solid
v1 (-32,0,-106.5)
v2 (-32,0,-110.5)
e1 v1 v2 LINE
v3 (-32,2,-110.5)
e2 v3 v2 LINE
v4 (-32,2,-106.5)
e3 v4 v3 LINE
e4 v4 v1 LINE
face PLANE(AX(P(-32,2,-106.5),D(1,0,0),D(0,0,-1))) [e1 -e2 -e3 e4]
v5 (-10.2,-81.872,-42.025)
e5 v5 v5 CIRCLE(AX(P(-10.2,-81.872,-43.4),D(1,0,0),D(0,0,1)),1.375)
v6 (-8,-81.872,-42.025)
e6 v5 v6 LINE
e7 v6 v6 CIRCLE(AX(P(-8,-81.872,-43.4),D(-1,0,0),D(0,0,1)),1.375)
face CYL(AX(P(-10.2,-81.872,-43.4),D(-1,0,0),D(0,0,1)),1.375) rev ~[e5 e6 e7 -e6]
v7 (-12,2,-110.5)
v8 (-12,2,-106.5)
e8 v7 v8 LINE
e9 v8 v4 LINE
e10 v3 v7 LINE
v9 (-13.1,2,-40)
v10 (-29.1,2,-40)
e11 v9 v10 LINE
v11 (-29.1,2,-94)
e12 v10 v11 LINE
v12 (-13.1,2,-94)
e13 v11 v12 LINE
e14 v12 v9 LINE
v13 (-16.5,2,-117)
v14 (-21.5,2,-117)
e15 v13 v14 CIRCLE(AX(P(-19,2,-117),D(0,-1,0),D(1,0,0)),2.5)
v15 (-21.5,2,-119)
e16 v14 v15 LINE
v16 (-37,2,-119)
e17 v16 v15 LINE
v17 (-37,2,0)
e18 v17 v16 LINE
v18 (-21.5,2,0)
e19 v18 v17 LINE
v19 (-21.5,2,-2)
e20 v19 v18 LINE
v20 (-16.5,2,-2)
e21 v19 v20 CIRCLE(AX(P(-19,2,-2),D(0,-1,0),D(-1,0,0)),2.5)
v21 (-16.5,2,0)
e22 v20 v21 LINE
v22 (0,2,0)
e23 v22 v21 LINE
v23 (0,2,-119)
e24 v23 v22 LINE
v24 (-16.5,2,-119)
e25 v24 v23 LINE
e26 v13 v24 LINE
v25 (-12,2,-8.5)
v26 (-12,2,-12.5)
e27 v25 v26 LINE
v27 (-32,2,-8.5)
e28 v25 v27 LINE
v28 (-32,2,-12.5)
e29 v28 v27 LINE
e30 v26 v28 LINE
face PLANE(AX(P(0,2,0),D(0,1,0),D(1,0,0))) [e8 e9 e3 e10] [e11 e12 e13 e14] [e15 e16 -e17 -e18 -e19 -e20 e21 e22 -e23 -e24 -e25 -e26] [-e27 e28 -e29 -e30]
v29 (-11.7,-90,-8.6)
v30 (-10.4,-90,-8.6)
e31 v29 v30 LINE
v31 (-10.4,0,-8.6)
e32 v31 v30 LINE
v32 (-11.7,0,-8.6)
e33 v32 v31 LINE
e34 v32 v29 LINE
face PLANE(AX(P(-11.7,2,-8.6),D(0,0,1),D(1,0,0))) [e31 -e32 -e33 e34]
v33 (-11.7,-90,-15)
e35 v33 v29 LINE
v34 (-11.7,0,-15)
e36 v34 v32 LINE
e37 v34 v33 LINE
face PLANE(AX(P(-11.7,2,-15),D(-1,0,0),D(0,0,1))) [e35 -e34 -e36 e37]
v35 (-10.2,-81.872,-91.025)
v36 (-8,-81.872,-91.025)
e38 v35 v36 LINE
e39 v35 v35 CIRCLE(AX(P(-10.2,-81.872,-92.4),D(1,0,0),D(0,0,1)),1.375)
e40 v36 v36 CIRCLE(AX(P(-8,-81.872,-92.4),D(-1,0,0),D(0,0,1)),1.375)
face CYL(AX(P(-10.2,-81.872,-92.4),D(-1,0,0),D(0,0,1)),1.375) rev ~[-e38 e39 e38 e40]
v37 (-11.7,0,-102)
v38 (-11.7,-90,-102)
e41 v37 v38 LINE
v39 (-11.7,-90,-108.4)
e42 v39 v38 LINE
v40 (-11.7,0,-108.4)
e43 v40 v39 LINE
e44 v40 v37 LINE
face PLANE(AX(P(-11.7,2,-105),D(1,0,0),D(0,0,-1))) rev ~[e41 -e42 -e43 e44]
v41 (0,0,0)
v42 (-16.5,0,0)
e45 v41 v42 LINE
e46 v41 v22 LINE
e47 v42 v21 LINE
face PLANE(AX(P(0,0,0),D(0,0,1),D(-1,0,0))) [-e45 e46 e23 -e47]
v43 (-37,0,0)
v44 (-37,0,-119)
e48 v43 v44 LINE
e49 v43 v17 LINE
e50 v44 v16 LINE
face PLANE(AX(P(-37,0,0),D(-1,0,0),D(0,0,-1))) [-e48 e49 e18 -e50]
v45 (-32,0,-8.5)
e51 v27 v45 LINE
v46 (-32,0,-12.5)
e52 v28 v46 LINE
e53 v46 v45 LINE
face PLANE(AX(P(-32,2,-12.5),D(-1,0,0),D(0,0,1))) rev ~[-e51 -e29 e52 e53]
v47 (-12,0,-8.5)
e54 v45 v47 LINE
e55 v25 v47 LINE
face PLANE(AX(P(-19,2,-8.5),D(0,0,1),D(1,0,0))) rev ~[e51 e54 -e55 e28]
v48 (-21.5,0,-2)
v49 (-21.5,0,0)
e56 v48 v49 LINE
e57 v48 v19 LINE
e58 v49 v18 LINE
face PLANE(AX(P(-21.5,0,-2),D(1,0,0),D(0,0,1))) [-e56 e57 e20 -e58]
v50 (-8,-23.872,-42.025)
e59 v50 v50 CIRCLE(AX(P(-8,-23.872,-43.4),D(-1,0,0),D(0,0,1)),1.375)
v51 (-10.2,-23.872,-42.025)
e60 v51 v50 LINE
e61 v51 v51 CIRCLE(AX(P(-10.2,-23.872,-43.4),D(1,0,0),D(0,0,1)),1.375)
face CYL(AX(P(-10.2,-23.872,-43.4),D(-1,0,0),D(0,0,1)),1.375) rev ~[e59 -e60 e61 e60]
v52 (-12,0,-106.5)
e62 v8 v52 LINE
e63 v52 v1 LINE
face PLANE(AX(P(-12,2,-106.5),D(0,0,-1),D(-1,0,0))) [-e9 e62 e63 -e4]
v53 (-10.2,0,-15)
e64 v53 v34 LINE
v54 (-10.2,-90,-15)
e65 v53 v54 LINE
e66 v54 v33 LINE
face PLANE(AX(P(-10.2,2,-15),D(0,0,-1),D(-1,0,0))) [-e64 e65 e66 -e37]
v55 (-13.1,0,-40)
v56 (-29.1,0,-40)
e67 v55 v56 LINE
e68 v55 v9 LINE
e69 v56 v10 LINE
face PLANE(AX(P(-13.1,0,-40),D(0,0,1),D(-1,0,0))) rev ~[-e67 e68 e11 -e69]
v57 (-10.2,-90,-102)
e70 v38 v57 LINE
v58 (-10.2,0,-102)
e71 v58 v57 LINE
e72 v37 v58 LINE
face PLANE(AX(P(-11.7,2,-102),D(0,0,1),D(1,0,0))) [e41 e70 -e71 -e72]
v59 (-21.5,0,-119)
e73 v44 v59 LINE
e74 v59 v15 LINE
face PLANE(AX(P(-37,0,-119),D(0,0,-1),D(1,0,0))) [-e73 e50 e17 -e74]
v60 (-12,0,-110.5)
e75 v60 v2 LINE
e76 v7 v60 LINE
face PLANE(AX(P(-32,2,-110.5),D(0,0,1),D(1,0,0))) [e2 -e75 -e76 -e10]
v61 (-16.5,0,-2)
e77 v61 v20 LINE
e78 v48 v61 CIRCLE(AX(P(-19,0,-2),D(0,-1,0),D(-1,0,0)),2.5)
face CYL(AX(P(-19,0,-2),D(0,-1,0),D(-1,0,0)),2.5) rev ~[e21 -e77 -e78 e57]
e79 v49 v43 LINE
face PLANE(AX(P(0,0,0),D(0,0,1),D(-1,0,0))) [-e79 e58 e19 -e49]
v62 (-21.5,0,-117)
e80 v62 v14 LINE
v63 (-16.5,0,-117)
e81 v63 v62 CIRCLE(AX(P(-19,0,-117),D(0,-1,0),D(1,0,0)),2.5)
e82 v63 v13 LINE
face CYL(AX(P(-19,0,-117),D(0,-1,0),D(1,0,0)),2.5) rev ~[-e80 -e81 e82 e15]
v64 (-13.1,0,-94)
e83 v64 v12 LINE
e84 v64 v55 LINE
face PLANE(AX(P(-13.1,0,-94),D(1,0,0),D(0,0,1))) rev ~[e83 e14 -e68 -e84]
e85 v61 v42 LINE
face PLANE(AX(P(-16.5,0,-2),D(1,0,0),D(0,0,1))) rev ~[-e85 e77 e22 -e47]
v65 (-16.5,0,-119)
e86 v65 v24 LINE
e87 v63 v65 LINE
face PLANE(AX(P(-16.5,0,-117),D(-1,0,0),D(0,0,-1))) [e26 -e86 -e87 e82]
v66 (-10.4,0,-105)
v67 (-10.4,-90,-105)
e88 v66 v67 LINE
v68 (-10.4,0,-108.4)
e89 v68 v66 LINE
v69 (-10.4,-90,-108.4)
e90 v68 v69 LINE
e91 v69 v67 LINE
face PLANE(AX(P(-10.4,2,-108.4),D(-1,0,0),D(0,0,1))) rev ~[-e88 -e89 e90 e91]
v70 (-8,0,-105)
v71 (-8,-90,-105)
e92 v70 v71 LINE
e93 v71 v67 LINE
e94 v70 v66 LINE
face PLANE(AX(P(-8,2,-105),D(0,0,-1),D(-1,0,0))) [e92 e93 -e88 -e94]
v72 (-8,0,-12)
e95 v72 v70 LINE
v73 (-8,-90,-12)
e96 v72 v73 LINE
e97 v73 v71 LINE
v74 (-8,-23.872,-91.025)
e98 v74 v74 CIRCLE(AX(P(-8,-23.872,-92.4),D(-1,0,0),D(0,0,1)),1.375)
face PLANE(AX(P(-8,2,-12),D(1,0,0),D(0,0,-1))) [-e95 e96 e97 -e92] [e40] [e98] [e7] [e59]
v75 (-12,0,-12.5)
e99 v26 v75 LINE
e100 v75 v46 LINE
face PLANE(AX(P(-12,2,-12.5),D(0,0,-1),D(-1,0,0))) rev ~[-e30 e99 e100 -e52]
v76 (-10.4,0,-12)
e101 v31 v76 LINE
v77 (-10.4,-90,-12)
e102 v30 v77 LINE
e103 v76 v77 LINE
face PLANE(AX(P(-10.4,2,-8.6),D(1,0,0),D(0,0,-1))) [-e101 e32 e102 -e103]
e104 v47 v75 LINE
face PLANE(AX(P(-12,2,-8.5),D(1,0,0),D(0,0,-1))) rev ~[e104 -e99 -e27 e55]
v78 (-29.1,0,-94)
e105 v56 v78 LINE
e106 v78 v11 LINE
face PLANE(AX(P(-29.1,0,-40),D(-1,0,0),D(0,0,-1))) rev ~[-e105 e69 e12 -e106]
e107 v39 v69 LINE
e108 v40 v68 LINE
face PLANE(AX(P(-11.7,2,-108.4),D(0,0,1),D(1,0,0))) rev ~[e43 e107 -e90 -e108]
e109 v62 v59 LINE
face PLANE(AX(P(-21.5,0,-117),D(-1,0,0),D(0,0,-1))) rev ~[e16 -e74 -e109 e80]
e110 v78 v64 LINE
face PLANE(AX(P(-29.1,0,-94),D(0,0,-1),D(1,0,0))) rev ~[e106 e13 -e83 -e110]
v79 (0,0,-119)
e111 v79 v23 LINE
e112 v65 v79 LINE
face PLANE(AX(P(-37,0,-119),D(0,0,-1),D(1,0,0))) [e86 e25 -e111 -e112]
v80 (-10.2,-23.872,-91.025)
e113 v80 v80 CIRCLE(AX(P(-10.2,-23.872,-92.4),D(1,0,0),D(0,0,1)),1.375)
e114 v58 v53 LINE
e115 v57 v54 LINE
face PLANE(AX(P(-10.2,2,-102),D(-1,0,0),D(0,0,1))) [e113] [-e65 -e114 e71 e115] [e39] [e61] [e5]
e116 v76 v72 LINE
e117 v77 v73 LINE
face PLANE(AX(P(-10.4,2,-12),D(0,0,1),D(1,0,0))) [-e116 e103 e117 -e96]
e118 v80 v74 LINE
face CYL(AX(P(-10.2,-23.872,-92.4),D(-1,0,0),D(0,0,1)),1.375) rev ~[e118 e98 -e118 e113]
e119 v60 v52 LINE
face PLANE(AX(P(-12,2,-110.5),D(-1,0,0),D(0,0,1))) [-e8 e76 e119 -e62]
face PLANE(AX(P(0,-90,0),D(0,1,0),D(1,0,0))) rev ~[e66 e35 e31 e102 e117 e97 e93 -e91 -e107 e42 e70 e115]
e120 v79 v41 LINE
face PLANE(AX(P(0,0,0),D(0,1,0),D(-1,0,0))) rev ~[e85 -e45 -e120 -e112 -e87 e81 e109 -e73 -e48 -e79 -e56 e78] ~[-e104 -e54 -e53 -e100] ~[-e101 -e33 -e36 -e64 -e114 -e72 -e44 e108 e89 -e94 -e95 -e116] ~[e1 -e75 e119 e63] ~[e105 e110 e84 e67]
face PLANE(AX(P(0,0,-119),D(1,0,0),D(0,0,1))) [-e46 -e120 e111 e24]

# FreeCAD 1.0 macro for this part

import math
import FreeCAD as App
import Part
import Sketcher
from FreeCAD import Vector

doc = App.newDocument("Part")
body = doc.addObject("PartDesign::Body", "Body")

sketch1 = body.newObject("Sketcher::SketchObject", "Sketch")
sketch1.AttachmentSupport = (doc.getObject("XZ_Plane"), [""])
sketch1.MapMode = "FlatFace"
sketch1.addGeometry([
    Part.LineSegment(Vector(-37, 0, 0), Vector(0, 0, 0)),
    Part.LineSegment(Vector(0, 0, 0), Vector(0, -119, 0)),
    Part.LineSegment(Vector(0, -119, 0), Vector(-37, -119, 0)),
    Part.LineSegment(Vector(-37, -119, 0), Vector(-37, 0, 0)),
], False)
sketch1.addConstraint([
    Sketcher.Constraint("Coincident", 0, 2, 1, 1),
    Sketcher.Constraint("Coincident", 1, 2, 2, 1),
    Sketcher.Constraint("Coincident", 2, 2, 3, 1),
    Sketcher.Constraint("Coincident", 3, 2, 0, 1),
    Sketcher.Constraint("Horizontal", 0),
    Sketcher.Constraint("Vertical", 1),
    Sketcher.Constraint("Horizontal", 2),
    Sketcher.Constraint("Vertical", 3),
    Sketcher.Constraint("Coincident", 0, 2, -1, 1),
    Sketcher.Constraint("DistanceX", 0, 1, 0, 2, 37.0),
    Sketcher.Constraint("DistanceY", 1, 2, 1, 1, 119.0),
])
pad1 = body.newObject("PartDesign::Pad", "Pad")
pad1.Profile = sketch1
pad1.Length = 2
pad1.Reversed = True

sketch2 = body.newObject("Sketcher::SketchObject", "Sketch001")
sketch2.AttachmentSupport = (doc.getObject("XZ_Plane"), [""])
sketch2.MapMode = "FlatFace"
sketch2.addGeometry([
    Part.LineSegment(Vector(-16.5, -2, 0), Vector(-16.5, 0, 0)),
    Part.LineSegment(Vector(-16.5, 0, 0), Vector(-21.5, 0, 0)),
    Part.LineSegment(Vector(-21.5, 0, 0), Vector(-21.5, -2, 0)),
    Part.ArcOfCircle(Part.Circle(Vector(-19, -2, 0), Vector(0, 0, 1), 2.5), math.radians(180), math.radians(360)),
    Part.LineSegment(Vector(-21.5, -119, 0), Vector(-16.5, -119, 0)),
    Part.LineSegment(Vector(-16.5, -119, 0), Vector(-16.5, -117, 0)),
    Part.ArcOfCircle(Part.Circle(Vector(-19, -117, 0), Vector(0, 0, 1), 2.5), math.radians(0), math.radians(180)),
    Part.LineSegment(Vector(-21.5, -117, 0), Vector(-21.5, -119, 0)),
], False)
sketch2.addConstraint([
    Sketcher.Constraint("Coincident", 0, 2, 1, 1),
    Sketcher.Constraint("Coincident", 1, 2, 2, 1),
    Sketcher.Constraint("Tangent", 2, 2, 3, 1),
    Sketcher.Constraint("Tangent", 3, 2, 0, 1),
    Sketcher.Constraint("Coincident", 4, 2, 5, 1),
    Sketcher.Constraint("Tangent", 5, 2, 6, 1),
    Sketcher.Constraint("Tangent", 6, 2, 7, 1),
    Sketcher.Constraint("Coincident", 7, 2, 4, 1),
    Sketcher.Constraint("Vertical", 0),
    Sketcher.Constraint("Horizontal", 1),
    Sketcher.Constraint("Vertical", 2),
    Sketcher.Constraint("Horizontal", 4),
    Sketcher.Constraint("Vertical", 5),
    Sketcher.Constraint("Vertical", 7),
    Sketcher.Constraint("Equal", 3, 6),
    Sketcher.Constraint("PointOnObject", 0, 2, -1),
    Sketcher.Constraint("Vertical", 3, 3, 6, 3),
    Sketcher.Constraint("Equal", 2, 5),
    Sketcher.Constraint("Radius", 3, 2.5),
    Sketcher.Constraint("DistanceY", 0, 1, 0, 2, 2.0),
    Sketcher.Constraint("DistanceX", 3, 3, -1, 1, 19.0),
    Sketcher.Constraint("DistanceY", 6, 3, -1, 1, 117.0),
])
pocket1 = body.newObject("PartDesign::Pocket", "Pocket")
pocket1.Profile = sketch2
pocket1.Length = 2

sketch3 = body.newObject("Sketcher::SketchObject", "Sketch002")
sketch3.AttachmentSupport = (doc.getObject("XZ_Plane"), [""])
sketch3.MapMode = "FlatFace"
sketch3.AttachmentOffset = App.Placement(Vector(0, 0, -2), App.Rotation())
sketch3.addGeometry([
    Part.LineSegment(Vector(-11.7, -15, 0), Vector(-11.7, -8.6, 0)),
    Part.LineSegment(Vector(-11.7, -8.6, 0), Vector(-10.4, -8.6, 0)),
    Part.LineSegment(Vector(-10.4, -8.6, 0), Vector(-10.4, -12, 0)),
    Part.LineSegment(Vector(-10.4, -12, 0), Vector(-8, -12, 0)),
    Part.LineSegment(Vector(-8, -12, 0), Vector(-8, -105, 0)),
    Part.LineSegment(Vector(-8, -105, 0), Vector(-10.4, -105, 0)),
    Part.LineSegment(Vector(-10.4, -105, 0), Vector(-10.4, -108.4, 0)),
    Part.LineSegment(Vector(-10.4, -108.4, 0), Vector(-11.7, -108.4, 0)),
    Part.LineSegment(Vector(-11.7, -108.4, 0), Vector(-11.7, -102, 0)),
    Part.LineSegment(Vector(-11.7, -102, 0), Vector(-10.2, -102, 0)),
    Part.LineSegment(Vector(-10.2, -102, 0), Vector(-10.2, -15, 0)),
    Part.LineSegment(Vector(-10.2, -15, 0), Vector(-11.7, -15, 0)),
], False)
sketch3.addConstraint([
    Sketcher.Constraint("Coincident", 0, 2, 1, 1),
    Sketcher.Constraint("Coincident", 1, 2, 2, 1),
    Sketcher.Constraint("Coincident", 2, 2, 3, 1),
    Sketcher.Constraint("Coincident", 3, 2, 4, 1),
    Sketcher.Constraint("Coincident", 4, 2, 5, 1),
    Sketcher.Constraint("Coincident", 5, 2, 6, 1),
    Sketcher.Constraint("Coincident", 6, 2, 7, 1),
    Sketcher.Constraint("Coincident", 7, 2, 8, 1),
    Sketcher.Constraint("Coincident", 8, 2, 9, 1),
    Sketcher.Constraint("Coincident", 9, 2, 10, 1),
    Sketcher.Constraint("Coincident", 10, 2, 11, 1),
    Sketcher.Constraint("Coincident", 11, 2, 0, 1),
    Sketcher.Constraint("Vertical", 0),
    Sketcher.Constraint("Horizontal", 1),
    Sketcher.Constraint("Vertical", 2),
    Sketcher.Constraint("Horizontal", 3),
    Sketcher.Constraint("Vertical", 4),
    Sketcher.Constraint("Horizontal", 5),
    Sketcher.Constraint("Vertical", 6),
    Sketcher.Constraint("Horizontal", 7),
    Sketcher.Constraint("Vertical", 8),
    Sketcher.Constraint("Horizontal", 9),
    Sketcher.Constraint("Vertical", 10),
    Sketcher.Constraint("Horizontal", 11),
    Sketcher.Constraint("Vertical", 2, 2, 5, 2),
    Sketcher.Constraint("Vertical", 0, 2, 7, 2),
    Sketcher.Constraint("Equal", 2, 6),
    Sketcher.Constraint("Equal", 0, 8),
    Sketcher.Constraint("DistanceY", 4, 2, 4, 1, 93.0),
    Sketcher.Constraint("DistanceY", 10, 1, 10, 2, 87.0),
    Sketcher.Constraint("DistanceX", 1, 1, 1, 2, 1.3),
    Sketcher.Constraint("DistanceX", 9, 1, 9, 2, 1.5),
    Sketcher.Constraint("DistanceY", 2, 2, 2, 1, 3.4),
    Sketcher.Constraint("DistanceY", 2, 2, -1, 1, 12.0),
    Sketcher.Constraint("DistanceX", 9, 2, 4, 2, 2.2),
    Sketcher.Constraint("DistanceX", 3, 2, -1, 1, 8.0),
])
pad2 = body.newObject("PartDesign::Pad", "Pad001")
pad2.Profile = sketch3
pad2.Length = 92

sketch4 = body.newObject("Sketcher::SketchObject", "Sketch003")
sketch4.AttachmentSupport = (doc.getObject("YZ_Plane"), [""])
sketch4.MapMode = "FlatFace"
sketch4.AttachmentOffset = App.Placement(Vector(0, 0, -10.2), App.Rotation())
sketch4.addGeometry([
    Part.Circle(Vector(-23.872, -43.4, 0), Vector(0, 0, 1), 1.375),
    Part.Circle(Vector(-23.872, -92.4, 0), Vector(0, 0, 1), 1.375),
    Part.Circle(Vector(-81.872, -92.4, 0), Vector(0, 0, 1), 1.375),
    Part.Circle(Vector(-81.872, -43.4, 0), Vector(0, 0, 1), 1.375),
], False)
sketch4.addConstraint([
    Sketcher.Constraint("Equal", 0, 1),
    Sketcher.Constraint("Equal", 1, 2),
    Sketcher.Constraint("Equal", 2, 3),
    Sketcher.Constraint("Horizontal", 1, 3, 2, 3),
    Sketcher.Constraint("Horizontal", 0, 3, 3, 3),
    Sketcher.Constraint("Vertical", 0, 3, 1, 3),
    Sketcher.Constraint("Vertical", 2, 3, 3, 3),
    Sketcher.Constraint("Diameter", 0, 2.75),
    Sketcher.Constraint("DistanceY", 1, 3, 0, 3, 49.0),
    Sketcher.Constraint("DistanceX", 2, 3, 1, 3, 58.0),
    Sketcher.Constraint("DistanceY", 0, 3, -1, 1, 43.4),
    Sketcher.Constraint("DistanceX", 0, 3, -1, 1, 23.872),
])
pocket2 = body.newObject("PartDesign::Pocket", "Pocket001")
pocket2.Profile = sketch4
pocket2.Length = 2.2
pocket2.Reversed = True

sketch5 = body.newObject("Sketcher::SketchObject", "Sketch004")
sketch5.AttachmentSupport = (doc.getObject("XZ_Plane"), [""])
sketch5.MapMode = "FlatFace"
sketch5.addGeometry([
    Part.LineSegment(Vector(-13.1, -94, 0), Vector(-13.1, -40, 0)),
    Part.LineSegment(Vector(-13.1, -40, 0), Vector(-29.1, -40, 0)),
    Part.LineSegment(Vector(-29.1, -40, 0), Vector(-29.1, -94, 0)),
    Part.LineSegment(Vector(-29.1, -94, 0), Vector(-13.1, -94, 0)),
], False)
sketch5.addConstraint([
    Sketcher.Constraint("Coincident", 0, 2, 1, 1),
    Sketcher.Constraint("Coincident", 1, 2, 2, 1),
    Sketcher.Constraint("Coincident", 2, 2, 3, 1),
    Sketcher.Constraint("Coincident", 3, 2, 0, 1),
    Sketcher.Constraint("Vertical", 0),
    Sketcher.Constraint("Horizontal", 1),
    Sketcher.Constraint("Vertical", 2),
    Sketcher.Constraint("Horizontal", 3),
    Sketcher.Constraint("DistanceX", 1, 2, 1, 1, 16.0),
    Sketcher.Constraint("DistanceY", 0, 1, 0, 2, 54.0),
    Sketcher.Constraint("DistanceY", 0, 2, -1, 1, 40.0),
    Sketcher.Constraint("DistanceX", 0, 2, -1, 1, 13.1),
])
pocket3 = body.newObject("PartDesign::Pocket", "Pocket002")
pocket3.Profile = sketch5
pocket3.Length = 2

sketch6 = body.newObject("Sketcher::SketchObject", "Sketch005")
sketch6.AttachmentSupport = (doc.getObject("XZ_Plane"), [""])
sketch6.MapMode = "FlatFace"
sketch6.AttachmentOffset = App.Placement(Vector(0, 0, -2), App.Rotation())
sketch6.addGeometry([
    Part.LineSegment(Vector(-12, -110.5, 0), Vector(-32, -110.5, 0)),
    Part.LineSegment(Vector(-32, -110.5, 0), Vector(-32, -106.5, 0)),
    Part.LineSegment(Vector(-32, -106.5, 0), Vector(-12, -106.5, 0)),
    Part.LineSegment(Vector(-12, -106.5, 0), Vector(-12, -110.5, 0)),
    Part.LineSegment(Vector(-32, -12.5, 0), Vector(-32, -8.5, 0)),
    Part.LineSegment(Vector(-32, -8.5, 0), Vector(-12, -8.5, 0)),
    Part.LineSegment(Vector(-12, -8.5, 0), Vector(-12, -12.5, 0)),
    Part.LineSegment(Vector(-12, -12.5, 0), Vector(-32, -12.5, 0)),
], False)
sketch6.addConstraint([
    Sketcher.Constraint("Coincident", 0, 2, 1, 1),
    Sketcher.Constraint("Coincident", 1, 2, 2, 1),
    Sketcher.Constraint("Coincident", 2, 2, 3, 1),
    Sketcher.Constraint("Coincident", 3, 2, 0, 1),
    Sketcher.Constraint("Coincident", 4, 2, 5, 1),
    Sketcher.Constraint("Coincident", 5, 2, 6, 1),
    Sketcher.Constraint("Coincident", 6, 2, 7, 1),
    Sketcher.Constraint("Coincident", 7, 2, 4, 1),
    Sketcher.Constraint("Horizontal", 0),
    Sketcher.Constraint("Vertical", 1),
    Sketcher.Constraint("Horizontal", 2),
    Sketcher.Constraint("Vertical", 3),
    Sketcher.Constraint("Vertical", 4),
    Sketcher.Constraint("Horizontal", 5),
    Sketcher.Constraint("Vertical", 6),
    Sketcher.Constraint("Horizontal", 7),
    Sketcher.Constraint("Vertical", 1, 2, 4, 2),
    Sketcher.Constraint("Vertical", 3, 2, 5, 2),
    Sketcher.Constraint("Equal", 3, 4),
    Sketcher.Constraint("DistanceX", 0, 2, 0, 1, 20.0),
    Sketcher.Constraint("DistanceY", 1, 1, 1, 2, 4.0),
    Sketcher.Constraint("DistanceY", 6, 2, -1, 1, 12.5),
    Sketcher.Constraint("DistanceX", 0, 2, -1, 1, 32.0),
    Sketcher.Constraint("DistanceY", 1, 2, 4, 2, 98.0),
])
pocket4 = body.newObject("PartDesign::Pocket", "Pocket003")
pocket4.Profile = sketch6
pocket4.Length = 2
pocket4.Reversed = True

doc.recompute()
